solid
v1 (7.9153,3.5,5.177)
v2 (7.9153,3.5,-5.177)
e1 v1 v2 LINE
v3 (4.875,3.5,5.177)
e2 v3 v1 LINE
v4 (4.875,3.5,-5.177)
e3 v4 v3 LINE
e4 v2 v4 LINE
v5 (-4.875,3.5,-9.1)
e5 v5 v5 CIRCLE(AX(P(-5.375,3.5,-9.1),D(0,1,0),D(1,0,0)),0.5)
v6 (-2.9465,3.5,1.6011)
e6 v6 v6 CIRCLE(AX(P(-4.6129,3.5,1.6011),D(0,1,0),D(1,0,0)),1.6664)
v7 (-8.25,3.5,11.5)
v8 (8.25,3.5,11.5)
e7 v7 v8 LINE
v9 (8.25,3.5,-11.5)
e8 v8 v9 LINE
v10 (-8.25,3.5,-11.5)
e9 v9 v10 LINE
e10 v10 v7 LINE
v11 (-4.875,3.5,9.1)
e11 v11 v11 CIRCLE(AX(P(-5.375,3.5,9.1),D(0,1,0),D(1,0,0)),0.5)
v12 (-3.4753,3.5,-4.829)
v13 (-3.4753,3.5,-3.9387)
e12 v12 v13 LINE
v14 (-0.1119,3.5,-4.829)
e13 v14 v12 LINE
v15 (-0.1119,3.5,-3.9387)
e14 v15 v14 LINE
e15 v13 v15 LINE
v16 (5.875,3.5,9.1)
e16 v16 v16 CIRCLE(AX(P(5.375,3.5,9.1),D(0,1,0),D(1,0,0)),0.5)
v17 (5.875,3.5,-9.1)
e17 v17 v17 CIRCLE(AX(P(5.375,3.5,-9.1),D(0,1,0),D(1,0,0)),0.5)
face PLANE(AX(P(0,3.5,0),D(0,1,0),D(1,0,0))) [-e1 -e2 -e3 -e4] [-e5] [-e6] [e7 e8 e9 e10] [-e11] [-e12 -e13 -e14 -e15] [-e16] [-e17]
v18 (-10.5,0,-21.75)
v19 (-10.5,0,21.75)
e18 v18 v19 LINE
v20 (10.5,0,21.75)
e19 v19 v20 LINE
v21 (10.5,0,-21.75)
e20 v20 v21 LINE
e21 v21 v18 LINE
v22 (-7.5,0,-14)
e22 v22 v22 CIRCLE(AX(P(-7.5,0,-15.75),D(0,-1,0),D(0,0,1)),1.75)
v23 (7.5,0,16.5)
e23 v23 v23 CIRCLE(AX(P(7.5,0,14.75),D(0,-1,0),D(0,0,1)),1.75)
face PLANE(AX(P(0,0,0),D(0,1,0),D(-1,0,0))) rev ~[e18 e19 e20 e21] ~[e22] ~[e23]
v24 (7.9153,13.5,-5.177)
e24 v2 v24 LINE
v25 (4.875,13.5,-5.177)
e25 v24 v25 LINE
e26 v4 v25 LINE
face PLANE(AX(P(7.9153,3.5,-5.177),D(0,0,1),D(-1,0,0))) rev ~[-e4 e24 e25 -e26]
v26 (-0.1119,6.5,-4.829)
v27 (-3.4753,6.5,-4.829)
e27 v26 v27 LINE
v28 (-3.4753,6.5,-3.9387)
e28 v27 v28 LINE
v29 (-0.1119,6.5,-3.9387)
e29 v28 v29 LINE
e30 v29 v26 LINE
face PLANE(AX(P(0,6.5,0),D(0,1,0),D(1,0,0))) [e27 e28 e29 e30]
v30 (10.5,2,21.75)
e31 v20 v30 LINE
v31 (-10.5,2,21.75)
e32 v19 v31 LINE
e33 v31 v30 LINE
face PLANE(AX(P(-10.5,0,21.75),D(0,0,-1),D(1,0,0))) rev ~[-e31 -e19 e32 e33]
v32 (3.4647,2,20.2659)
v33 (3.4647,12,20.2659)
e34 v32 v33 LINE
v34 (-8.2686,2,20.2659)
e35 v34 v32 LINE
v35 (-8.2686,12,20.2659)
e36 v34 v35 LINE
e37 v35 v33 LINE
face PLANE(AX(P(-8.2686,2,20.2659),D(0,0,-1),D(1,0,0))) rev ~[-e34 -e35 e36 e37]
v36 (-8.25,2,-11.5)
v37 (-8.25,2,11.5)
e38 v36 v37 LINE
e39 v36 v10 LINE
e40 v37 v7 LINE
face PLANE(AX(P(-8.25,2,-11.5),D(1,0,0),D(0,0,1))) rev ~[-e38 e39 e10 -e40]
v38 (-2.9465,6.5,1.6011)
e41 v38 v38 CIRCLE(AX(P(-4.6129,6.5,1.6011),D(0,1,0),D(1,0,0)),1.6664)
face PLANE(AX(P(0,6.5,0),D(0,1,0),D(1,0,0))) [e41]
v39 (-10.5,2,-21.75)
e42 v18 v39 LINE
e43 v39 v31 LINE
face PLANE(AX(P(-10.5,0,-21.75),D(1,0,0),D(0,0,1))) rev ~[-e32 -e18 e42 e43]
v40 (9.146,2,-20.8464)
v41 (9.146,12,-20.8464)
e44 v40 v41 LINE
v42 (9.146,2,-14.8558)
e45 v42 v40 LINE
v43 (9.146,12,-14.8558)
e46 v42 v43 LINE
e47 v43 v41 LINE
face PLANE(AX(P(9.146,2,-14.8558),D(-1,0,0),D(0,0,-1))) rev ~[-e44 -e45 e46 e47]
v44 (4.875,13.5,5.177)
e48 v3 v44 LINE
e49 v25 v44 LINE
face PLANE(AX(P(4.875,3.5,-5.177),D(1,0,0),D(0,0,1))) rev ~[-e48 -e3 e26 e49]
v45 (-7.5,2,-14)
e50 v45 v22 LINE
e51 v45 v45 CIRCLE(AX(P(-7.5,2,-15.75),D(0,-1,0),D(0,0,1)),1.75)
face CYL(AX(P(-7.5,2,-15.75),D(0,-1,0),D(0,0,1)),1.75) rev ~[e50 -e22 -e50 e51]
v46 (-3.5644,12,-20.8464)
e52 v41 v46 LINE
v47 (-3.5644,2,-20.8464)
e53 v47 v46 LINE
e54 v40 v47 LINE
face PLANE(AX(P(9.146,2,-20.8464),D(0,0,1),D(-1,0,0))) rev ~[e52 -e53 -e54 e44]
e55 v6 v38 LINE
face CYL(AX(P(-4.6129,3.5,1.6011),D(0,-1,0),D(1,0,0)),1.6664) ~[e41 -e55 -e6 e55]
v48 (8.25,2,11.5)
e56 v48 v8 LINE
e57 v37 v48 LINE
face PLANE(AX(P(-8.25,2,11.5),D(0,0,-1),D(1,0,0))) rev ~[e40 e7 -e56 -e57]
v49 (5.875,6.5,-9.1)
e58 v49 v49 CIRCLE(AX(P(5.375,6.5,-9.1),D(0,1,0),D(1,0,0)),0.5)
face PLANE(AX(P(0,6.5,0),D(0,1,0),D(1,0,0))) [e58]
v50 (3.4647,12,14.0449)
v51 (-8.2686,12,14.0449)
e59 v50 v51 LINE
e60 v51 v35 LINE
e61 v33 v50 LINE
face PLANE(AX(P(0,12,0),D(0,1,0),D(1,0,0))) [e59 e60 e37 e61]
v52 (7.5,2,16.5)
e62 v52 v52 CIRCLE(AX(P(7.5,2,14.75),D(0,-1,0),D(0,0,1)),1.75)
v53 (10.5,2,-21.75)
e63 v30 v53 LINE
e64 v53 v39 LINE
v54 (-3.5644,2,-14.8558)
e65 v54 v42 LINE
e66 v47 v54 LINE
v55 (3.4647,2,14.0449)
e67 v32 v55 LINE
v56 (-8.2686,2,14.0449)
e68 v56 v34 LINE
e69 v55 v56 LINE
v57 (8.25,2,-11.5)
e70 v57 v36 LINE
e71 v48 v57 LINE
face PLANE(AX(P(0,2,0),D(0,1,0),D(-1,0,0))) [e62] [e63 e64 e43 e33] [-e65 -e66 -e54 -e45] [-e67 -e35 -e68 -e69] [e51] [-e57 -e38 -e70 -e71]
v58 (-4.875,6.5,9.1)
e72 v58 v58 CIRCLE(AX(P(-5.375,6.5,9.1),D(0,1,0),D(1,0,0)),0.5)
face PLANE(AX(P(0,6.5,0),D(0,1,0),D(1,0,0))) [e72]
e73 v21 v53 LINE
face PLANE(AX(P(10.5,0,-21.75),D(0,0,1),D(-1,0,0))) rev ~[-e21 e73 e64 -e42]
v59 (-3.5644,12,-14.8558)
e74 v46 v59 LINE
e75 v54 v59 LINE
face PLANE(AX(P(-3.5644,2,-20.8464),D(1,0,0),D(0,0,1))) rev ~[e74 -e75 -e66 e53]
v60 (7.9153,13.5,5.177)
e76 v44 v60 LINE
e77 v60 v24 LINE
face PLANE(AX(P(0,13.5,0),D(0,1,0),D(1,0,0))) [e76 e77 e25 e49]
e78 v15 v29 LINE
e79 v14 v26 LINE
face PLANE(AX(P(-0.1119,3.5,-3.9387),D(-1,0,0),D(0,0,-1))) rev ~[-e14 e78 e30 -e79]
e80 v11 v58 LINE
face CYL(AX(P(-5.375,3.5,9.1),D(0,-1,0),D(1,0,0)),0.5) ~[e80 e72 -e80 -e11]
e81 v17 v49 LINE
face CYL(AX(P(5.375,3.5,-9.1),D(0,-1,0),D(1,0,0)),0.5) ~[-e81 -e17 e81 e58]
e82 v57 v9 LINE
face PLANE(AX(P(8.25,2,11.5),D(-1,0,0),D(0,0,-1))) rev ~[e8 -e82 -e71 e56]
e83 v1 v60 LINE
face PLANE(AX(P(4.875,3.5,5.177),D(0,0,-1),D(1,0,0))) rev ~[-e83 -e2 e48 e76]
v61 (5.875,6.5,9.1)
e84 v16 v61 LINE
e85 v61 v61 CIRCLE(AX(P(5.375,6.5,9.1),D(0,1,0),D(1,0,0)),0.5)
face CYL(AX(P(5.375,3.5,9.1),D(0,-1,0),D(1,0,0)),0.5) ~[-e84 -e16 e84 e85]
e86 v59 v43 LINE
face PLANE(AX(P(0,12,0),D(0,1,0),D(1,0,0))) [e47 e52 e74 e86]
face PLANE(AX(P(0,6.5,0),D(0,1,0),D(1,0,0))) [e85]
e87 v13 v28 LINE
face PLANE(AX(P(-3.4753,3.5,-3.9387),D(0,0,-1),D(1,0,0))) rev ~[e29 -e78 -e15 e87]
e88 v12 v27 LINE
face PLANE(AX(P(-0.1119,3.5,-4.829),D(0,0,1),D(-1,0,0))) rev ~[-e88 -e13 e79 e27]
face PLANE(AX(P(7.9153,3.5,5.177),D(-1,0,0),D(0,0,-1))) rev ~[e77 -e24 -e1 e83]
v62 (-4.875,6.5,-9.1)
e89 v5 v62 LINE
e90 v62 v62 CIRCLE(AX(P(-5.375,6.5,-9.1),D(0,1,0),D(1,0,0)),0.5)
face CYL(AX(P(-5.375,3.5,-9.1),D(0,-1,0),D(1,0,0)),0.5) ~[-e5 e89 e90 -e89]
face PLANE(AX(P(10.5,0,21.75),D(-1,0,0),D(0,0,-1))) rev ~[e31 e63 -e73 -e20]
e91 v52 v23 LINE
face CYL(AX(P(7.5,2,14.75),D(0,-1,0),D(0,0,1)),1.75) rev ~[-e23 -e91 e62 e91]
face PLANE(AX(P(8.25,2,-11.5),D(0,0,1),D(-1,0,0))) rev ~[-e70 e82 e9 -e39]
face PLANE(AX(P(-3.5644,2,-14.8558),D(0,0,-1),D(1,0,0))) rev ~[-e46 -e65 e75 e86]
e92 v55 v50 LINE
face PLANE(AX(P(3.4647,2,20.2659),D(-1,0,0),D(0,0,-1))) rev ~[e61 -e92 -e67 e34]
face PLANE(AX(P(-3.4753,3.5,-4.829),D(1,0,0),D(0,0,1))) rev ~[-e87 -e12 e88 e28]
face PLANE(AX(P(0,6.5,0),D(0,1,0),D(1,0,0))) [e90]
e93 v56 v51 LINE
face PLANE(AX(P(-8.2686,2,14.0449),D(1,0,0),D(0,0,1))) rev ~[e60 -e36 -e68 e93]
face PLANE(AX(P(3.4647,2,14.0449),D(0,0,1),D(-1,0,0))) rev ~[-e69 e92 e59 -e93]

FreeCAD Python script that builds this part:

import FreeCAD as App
import Part
import Sketcher
Q = App.Units.Quantity


def add_polygon(sketch, points):
    """Adds a closed chain of lines whose ends are joined by coincident constraints."""
    first, n = sketch.GeometryCount, len(points)
    for a, b in zip(points, points[1:] + points[:1]):
        sketch.addGeometry(Part.LineSegment(App.Vector(*a, 0), App.Vector(*b, 0)), False)
    for i in range(n):
        sketch.addConstraint(Sketcher.Constraint("Coincident", first + i, 2, first + (i + 1) % n, 1))

doc = App.newDocument("Part")
body = doc.addObject("PartDesign::Body", "Body")

sketch1 = body.newObject("Sketcher::SketchObject", "Sketch")
sketch1.AttachmentSupport = (doc.getObject("XZ_Plane"), [""])
sketch1.MapMode = "FlatFace"
add_polygon(sketch1, [(10, 22), (10, -22), (-10, -22), (-10, 22)])
sketch1.addConstraint(Sketcher.Constraint("Vertical", 0))
sketch1.addConstraint(Sketcher.Constraint("Horizontal", 1))
sketch1.addConstraint(Sketcher.Constraint("Vertical", 2))
sketch1.addConstraint(Sketcher.Constraint("Horizontal", 3))
sketch1.addConstraint(Sketcher.Constraint("Symmetric", 0, 2, 2, 2, -1, 1))
sketch1.addConstraint(Sketcher.Constraint("DistanceX", 1, 2, 1, 1, Q("21 mm")))
sketch1.addConstraint(Sketcher.Constraint("DistanceY", 0, 2, 0, 1, Q("43.5 mm")))
pad1 = body.newObject("PartDesign::Pad", "Pad")
pad1.Profile = sketch1
pad1.Length = 2
pad1.Reversed = True

sketch2 = body.newObject("Sketcher::SketchObject", "Sketch001")
sketch2.AttachmentSupport = (doc.getObject("XZ_Plane"), [""])
sketch2.MapMode = "FlatFace"
sketch2.AttachmentOffset = App.Placement(App.Vector(0, 0, -2), App.Rotation())
sketch2.addGeometry(Part.Circle(App.Vector(7.5, 14.8, 0), App.Vector(0, 0, 1), 1.8), False)
sketch2.addGeometry(Part.Circle(App.Vector(-7.5, -15.8, 0), App.Vector(0, 0, 1), 1.8), False)
sketch2.addConstraint(Sketcher.Constraint("Equal", 0, 1))
sketch2.addConstraint(Sketcher.Constraint("Diameter", 0, Q("3.5 mm")))
sketch2.addConstraint(Sketcher.Constraint("DistanceX", 1, 3, 0, 3, Q("15 mm")))
sketch2.addConstraint(Sketcher.Constraint("DistanceX", -1, 1, 0, 3, Q("7.5 mm")))
sketch2.addConstraint(Sketcher.Constraint("DistanceY", 1, 3, 0, 3, Q("30.5 mm")))
sketch2.addConstraint(Sketcher.Constraint("DistanceY", -1, 1, 0, 3, Q("14.75 mm")))
doc.recompute()
hole = body.newObject("PartDesign::Hole", "Hole")
hole.Profile = sketch2
hole.ThreadType = "None"
hole.Diameter = 3.5
hole.DepthType = "ThroughAll"
hole.Reversed = True

sketch3 = body.newObject("Sketcher::SketchObject", "Sketch002")
sketch3.AttachmentSupport = (doc.getObject("XZ_Plane"), [""])
sketch3.MapMode = "FlatFace"
sketch3.AttachmentOffset = App.Placement(App.Vector(0, 0, -2), App.Rotation())
add_polygon(sketch3, [(8, 12), (8, -12), (-8, -12), (-8, 12)])
sketch3.addConstraint(Sketcher.Constraint("Vertical", 0))
sketch3.addConstraint(Sketcher.Constraint("Horizontal", 1))
sketch3.addConstraint(Sketcher.Constraint("Vertical", 2))
sketch3.addConstraint(Sketcher.Constraint("Horizontal", 3))
sketch3.addConstraint(Sketcher.Constraint("Symmetric", 0, 2, 2, 2, -1, 1))
sketch3.addConstraint(Sketcher.Constraint("DistanceY", 0, 2, 0, 1, Q("23 mm")))
sketch3.addConstraint(Sketcher.Constraint("DistanceX", 1, 2, 1, 1, Q("16.5 mm")))
pad2 = body.newObject("PartDesign::Pad", "Pad001")
pad2.Profile = sketch3
pad2.Length = 1.5
pad2.Reversed = True

sketch4 = body.newObject("Sketcher::SketchObject", "Sketch003")
sketch4.AttachmentSupport = (doc.getObject("XZ_Plane"), [""])
sketch4.MapMode = "FlatFace"
sketch4.AttachmentOffset = App.Placement(App.Vector(0, 0, -3.5), App.Rotation())
sketch4.addGeometry(Part.Circle(App.Vector(-5.4, 9.1, 0), App.Vector(0, 0, 1), 0.5), False)
sketch4.addGeometry(Part.Circle(App.Vector(5.4, 9.1, 0), App.Vector(0, 0, 1), 0.5), False)
sketch4.addGeometry(Part.Circle(App.Vector(5.4, -9.1, 0), App.Vector(0, 0, 1), 0.5), False)
sketch4.addGeometry(Part.Circle(App.Vector(-5.4, -9.1, 0), App.Vector(0, 0, 1), 0.5), False)
sketch4.addGeometry(Part.Circle(App.Vector(-4.6, 1.6, 0), App.Vector(0, 0, 1), 1.7), False)
add_polygon(sketch4, [(-0.1, -3.9), (-0.1, -4.8), (-3.5, -4.8), (-3.5, -3.9)])
sketch4.addConstraint(Sketcher.Constraint("Vertical", 5))
sketch4.addConstraint(Sketcher.Constraint("Horizontal", 6))
sketch4.addConstraint(Sketcher.Constraint("Vertical", 7))
sketch4.addConstraint(Sketcher.Constraint("Horizontal", 8))
sketch4.addConstraint(Sketcher.Constraint("Equal", 0, 1))
sketch4.addConstraint(Sketcher.Constraint("Equal", 1, 2))
sketch4.addConstraint(Sketcher.Constraint("Equal", 2, 3))
sketch4.addConstraint(Sketcher.Constraint("Symmetric", 0, 3, 2, 3, -1, 1))
sketch4.addConstraint(Sketcher.Constraint("Symmetric", 1, 3, 3, 3, -1, 1))
sketch4.addConstraint(Sketcher.Constraint("Symmetric", 0, 3, 1, 3, -2))
sketch4.addConstraint(Sketcher.Constraint("Diameter", 0, Q("1 mm")))
sketch4.addConstraint(Sketcher.Constraint("DistanceY", 2, 3, 1, 3, Q("18.2 mm")))
sketch4.addConstraint(Sketcher.Constraint("DistanceX", 0, 3, 1, 3, Q("10.75 mm")))
sketch4.addConstraint(Sketcher.Constraint("Diameter", 4, Q("3.3328 mm")))
sketch4.addConstraint(Sketcher.Constraint("DistanceY", 5, 2, 4, 3, Q("6.43 mm")))
sketch4.addConstraint(Sketcher.Constraint("DistanceX", 6, 2, 6, 1, Q("3.3634 mm")))
sketch4.addConstraint(Sketcher.Constraint("DistanceY", 5, 2, 5, 1, Q("0.8903 mm")))
sketch4.addConstraint(Sketcher.Constraint("DistanceX", 4, 3, -1, 1, Q("4.613 mm")))
sketch4.addConstraint(Sketcher.Constraint("DistanceY", -1, 1, 4, 3, Q("1.601 mm")))
sketch4.addConstraint(Sketcher.Constraint("DistanceX", 5, 2, -1, 1, Q("0.112 mm")))
pad3 = body.newObject("PartDesign::Pad", "Pad002")
pad3.Profile = sketch4
pad3.Length = 3
pad3.Reversed = True

sketch5 = body.newObject("Sketcher::SketchObject", "Sketch004")
sketch5.AttachmentSupport = (doc.getObject("XZ_Plane"), [""])
sketch5.MapMode = "FlatFace"
sketch5.AttachmentOffset = App.Placement(App.Vector(0, 0, -3.5), App.Rotation())
add_polygon(sketch5, [(7.9, 5.2), (7.9, -5.2), (4.9, -5.2), (4.9, 5.2)])
sketch5.addConstraint(Sketcher.Constraint("Vertical", 0))
sketch5.addConstraint(Sketcher.Constraint("Horizontal", 1))
sketch5.addConstraint(Sketcher.Constraint("Vertical", 2))
sketch5.addConstraint(Sketcher.Constraint("Horizontal", 3))
sketch5.addConstraint(Sketcher.Constraint("DistanceY", 0, 2, 0, 1, Q("10.354 mm")))
sketch5.addConstraint(Sketcher.Constraint("DistanceX", 1, 2, 1, 1, Q("3.0403 mm")))
sketch5.addConstraint(Sketcher.Constraint("DistanceY", 0, 2, -1, 1, Q("5.177 mm")))
sketch5.addConstraint(Sketcher.Constraint("DistanceX", -1, 1, 1, 2, Q("4.875 mm")))
pad4 = body.newObject("PartDesign::Pad", "Pad003")
pad4.Profile = sketch5
pad4.Length = 10
pad4.Reversed = True

sketch6 = body.newObject("Sketcher::SketchObject", "Sketch005")
sketch6.AttachmentSupport = (doc.getObject("XZ_Plane"), [""])
sketch6.MapMode = "FlatFace"
sketch6.AttachmentOffset = App.Placement(App.Vector(0, 0, -2), App.Rotation())
add_polygon(sketch6, [(3, 20), (3, 14), (-8, 14), (-8, 20)])
add_polygon(sketch6, [(9, -15), (9, -21), (-4, -21), (-4, -15)])
sketch6.addConstraint(Sketcher.Constraint("Vertical", 0))
sketch6.addConstraint(Sketcher.Constraint("Horizontal", 1))
sketch6.addConstraint(Sketcher.Constraint("Vertical", 2))
sketch6.addConstraint(Sketcher.Constraint("Horizontal", 3))
sketch6.addConstraint(Sketcher.Constraint("Vertical", 4))
sketch6.addConstraint(Sketcher.Constraint("Horizontal", 5))
sketch6.addConstraint(Sketcher.Constraint("Vertical", 6))
sketch6.addConstraint(Sketcher.Constraint("Horizontal", 7))
sketch6.addConstraint(Sketcher.Constraint("DistanceY", 0, 2, 0, 1, Q("6.221 mm")))
sketch6.addConstraint(Sketcher.Constraint("DistanceX", 1, 2, 1, 1, Q("11.7333 mm")))
sketch6.addConstraint(Sketcher.Constraint("DistanceX", 5, 2, 5, 1, Q("12.7104 mm")))
sketch6.addConstraint(Sketcher.Constraint("DistanceY", 4, 2, 4, 1, Q("5.9906 mm")))
sketch6.addConstraint(Sketcher.Constraint("DistanceY", -1, 1, 0, 2, Q("14.045 mm")))
sketch6.addConstraint(Sketcher.Constraint("DistanceX", -1, 1, 4, 2, Q("9.146 mm")))
sketch6.addConstraint(Sketcher.Constraint("DistanceX", 5, 2, 0, 2, Q("7.029 mm")))
sketch6.addConstraint(Sketcher.Constraint("DistanceY", 4, 2, -1, 1, Q("20.8464 mm")))
pad5 = body.newObject("PartDesign::Pad", "Pad004")
pad5.Profile = sketch6
pad5.Length = 10
pad5.Reversed = True

doc.recompute()
